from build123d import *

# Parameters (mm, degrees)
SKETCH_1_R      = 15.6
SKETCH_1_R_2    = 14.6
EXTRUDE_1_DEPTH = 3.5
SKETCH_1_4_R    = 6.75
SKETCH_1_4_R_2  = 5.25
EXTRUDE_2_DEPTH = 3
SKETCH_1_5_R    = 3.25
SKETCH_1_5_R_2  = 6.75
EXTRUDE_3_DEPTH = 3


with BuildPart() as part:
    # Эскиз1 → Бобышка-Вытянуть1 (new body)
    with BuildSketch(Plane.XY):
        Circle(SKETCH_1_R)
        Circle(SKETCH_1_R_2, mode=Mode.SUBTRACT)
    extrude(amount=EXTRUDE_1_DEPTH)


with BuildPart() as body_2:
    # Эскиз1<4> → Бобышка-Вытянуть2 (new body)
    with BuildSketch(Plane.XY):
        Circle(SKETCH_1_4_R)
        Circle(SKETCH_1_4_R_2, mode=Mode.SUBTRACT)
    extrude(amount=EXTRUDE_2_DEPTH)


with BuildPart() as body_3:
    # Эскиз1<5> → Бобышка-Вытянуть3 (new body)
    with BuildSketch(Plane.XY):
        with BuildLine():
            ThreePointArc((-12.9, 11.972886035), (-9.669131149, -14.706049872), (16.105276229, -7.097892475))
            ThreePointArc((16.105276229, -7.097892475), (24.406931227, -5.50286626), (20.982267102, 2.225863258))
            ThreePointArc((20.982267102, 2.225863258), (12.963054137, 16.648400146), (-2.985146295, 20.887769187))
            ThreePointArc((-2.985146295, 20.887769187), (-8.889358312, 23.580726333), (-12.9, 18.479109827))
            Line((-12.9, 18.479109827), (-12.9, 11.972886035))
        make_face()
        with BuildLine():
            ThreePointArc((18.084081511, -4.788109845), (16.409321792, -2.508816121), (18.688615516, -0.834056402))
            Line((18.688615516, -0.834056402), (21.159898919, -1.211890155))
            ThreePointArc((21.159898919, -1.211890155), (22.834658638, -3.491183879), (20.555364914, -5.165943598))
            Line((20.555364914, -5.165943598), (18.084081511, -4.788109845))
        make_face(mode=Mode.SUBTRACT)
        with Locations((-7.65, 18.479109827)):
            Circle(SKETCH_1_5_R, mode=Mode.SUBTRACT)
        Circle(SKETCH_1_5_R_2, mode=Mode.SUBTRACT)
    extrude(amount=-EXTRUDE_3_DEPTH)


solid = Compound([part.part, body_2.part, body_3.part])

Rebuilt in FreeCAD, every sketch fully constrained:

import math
import FreeCAD as App
import Part
import Sketcher

V = App.Vector
Q = App.Units.Quantity

doc = App.newDocument("Part")
params = doc.addObject("Spreadsheet::Sheet", "Params")
for row, (alias, value) in enumerate([
    ("sketch1_diameter", "31.2 mm"),
    ("sketch1_diameter2", "29.2 mm"),
    ("pad1_length", "3.5 mm"),
    ("sketch2_diameter", "13.5 mm"),
    ("sketch2_diameter2", "10.5 mm"),
    ("pad2_length", "3 mm"),
    ("sketch3_radius", "2 mm"),
    ("sketch3_diameter", "13.5 mm"),
    ("sketch3_diameter2", "6.5 mm"),
    ("sketch3_radius2", "17.6 mm"),
    ("sketch3_radius3", "5.4 mm"),
    ("pad3_length", "3 mm"),
], start=1):
    params.set(f"A{row}", alias)
    params.set(f"B{row}", "=" + value)
    params.setAlias(f"B{row}", alias)

body = doc.addObject("PartDesign::Body", "Body")

# Sketch on XY plane
sketch1 = body.newObject("Sketcher::SketchObject", "Sketch")
sketch1.AttachmentSupport = (doc.getObject("XY_Plane"), [""])
sketch1.MapMode = "FlatFace"
sketch1.addGeometry(Part.Circle(V(0, 0, 0), V(0, 0, 1), 16), False)
sketch1.addGeometry(Part.Circle(V(0, 0, 0), V(0, 0, 1), 15), False)
sketch1.addConstraint(Sketcher.Constraint("Coincident", 0, 3, -1, 1))
sketch1.addConstraint(Sketcher.Constraint("Coincident", 1, 3, -1, 1))
sketch1.addConstraint(Sketcher.Constraint("Diameter", 0, Q("31.2 mm")))
sketch1.addConstraint(Sketcher.Constraint("Diameter", 1, Q("29.2 mm")))
sketch1.setExpression("Constraints[2]", "Params.sketch1_diameter")
sketch1.setExpression("Constraints[3]", "Params.sketch1_diameter2")
pad1 = body.newObject("PartDesign::Pad", "Pad")
pad1.Profile = sketch1
pad1.setExpression("Length", "Params.pad1_length")
body2 = doc.addObject("PartDesign::Body", "Body001")

# Sketch on XY plane
sketch2 = body2.newObject("Sketcher::SketchObject", "Sketch001")
sketch2.AttachmentSupport = (doc.getObject("XY_Plane001"), [""])
sketch2.MapMode = "FlatFace"
sketch2.addGeometry(Part.Circle(V(0, 0, 0), V(0, 0, 1), 7), False)
sketch2.addGeometry(Part.Circle(V(0, 0, 0), V(0, 0, 1), 5), False)
sketch2.addConstraint(Sketcher.Constraint("Coincident", 0, 3, -1, 1))
sketch2.addConstraint(Sketcher.Constraint("Coincident", 1, 3, -1, 1))
sketch2.addConstraint(Sketcher.Constraint("Diameter", 0, Q("13.5 mm")))
sketch2.addConstraint(Sketcher.Constraint("Diameter", 1, Q("10.5 mm")))
sketch2.setExpression("Constraints[2]", "Params.sketch2_diameter")
sketch2.setExpression("Constraints[3]", "Params.sketch2_diameter2")
pad2 = body2.newObject("PartDesign::Pad", "Pad001")
pad2.Profile = sketch2
pad2.setExpression("Length", "Params.pad2_length")
body3 = doc.addObject("PartDesign::Body", "Body002")

# Sketch on XY plane
sketch3 = body3.newObject("Sketcher::SketchObject", "Sketch002")
sketch3.AttachmentSupport = (doc.getObject("XY_Plane002"), [""])
sketch3.MapMode = "FlatFace"
sketch3.addGeometry(Part.ArcOfCircle(Part.Circle(V(0, 0, 0), V(0, 0, 1), 17.6), math.radians(137), math.radians(336)), False)
sketch3.addGeometry(Part.ArcOfCircle(Part.Circle(V(19.6, -3, 0), V(0, 0, 1), 5.4), math.radians(-131), math.radians(75)), False)
sketch3.addGeometry(Part.ArcOfCircle(Part.Circle(V(0, 0, 0), V(0, 0, 1), 21.1), math.radians(6), math.radians(98)), False)
sketch3.addGeometry(Part.ArcOfCircle(Part.Circle(V(-7.7, 18.5, 0), V(0, 0, 1), 5.2), math.radians(27), math.radians(180)), False)
sketch3.addGeometry(Part.LineSegment(V(-12.9, 18.5, 0), V(-12.9, 12, 0)), False)
sketch3.addGeometry(Part.Circle(V(0, 0, 0), V(0, 0, 1), 6.8), False)
sketch3.addGeometry(Part.LineSegment(V(20.6, -5.2, 0), V(18.1, -4.8, 0)), False)
sketch3.addGeometry(Part.ArcOfCircle(Part.Circle(V(18.4, -2.8, 0), V(0, 0, 1), 2), math.radians(81), math.radians(261)), False)
sketch3.addGeometry(Part.LineSegment(V(18.7, -0.8, 0), V(21.2, -1.2, 0)), False)
sketch3.addGeometry(Part.ArcOfCircle(Part.Circle(V(20.9, -3.2, 0), V(0, 0, 1), 2), math.radians(-99), math.radians(81)), False)
sketch3.addGeometry(Part.Circle(V(-7.7, 18.5, 0), V(0, 0, 1), 3.2), False)
sketch3.addConstraint(Sketcher.Constraint("Coincident", 0, 2, 1, 1))
sketch3.addConstraint(Sketcher.Constraint("Coincident", 1, 2, 2, 1))
sketch3.addConstraint(Sketcher.Constraint("Coincident", 2, 2, 3, 1))
sketch3.addConstraint(Sketcher.Constraint("Tangent", 3, 2, 4, 1))
sketch3.addConstraint(Sketcher.Constraint("Coincident", 4, 2, 0, 1))
sketch3.addConstraint(Sketcher.Constraint("Tangent", 6, 2, 7, 2))
sketch3.addConstraint(Sketcher.Constraint("Tangent", 7, 1, 8, 1))
sketch3.addConstraint(Sketcher.Constraint("Tangent", 8, 2, 9, 2))
sketch3.addConstraint(Sketcher.Constraint("Tangent", 9, 1, 6, 1))
sketch3.addConstraint(Sketcher.Constraint("Vertical", 4))
sketch3.addConstraint(Sketcher.Constraint("Coincident", 0, 3, -1, 1))
sketch3.addConstraint(Sketcher.Constraint("Coincident", 2, 3, -1, 1))
sketch3.addConstraint(Sketcher.Constraint("Coincident", 5, 3, -1, 1))
sketch3.addConstraint(Sketcher.Constraint("Coincident", 10, 3, 3, 3))
sketch3.addConstraint(Sketcher.Constraint("Equal", 7, 9))
sketch3.addConstraint(Sketcher.Constraint("Radius", 7, Q("2 mm")))
sketch3.addConstraint(Sketcher.Constraint("Diameter", 5, Q("13.5 mm")))
sketch3.addConstraint(Sketcher.Constraint("Diameter", 10, Q("6.5 mm")))
sketch3.addConstraint(Sketcher.Constraint("Radius", 0, Q("17.6 mm")))
sketch3.addConstraint(Sketcher.Constraint("Radius", 1, Q("5.4 mm")))
sketch3.addConstraint(Sketcher.Constraint("Radius", 2, Q("21.1 mm")))
sketch3.addConstraint(Sketcher.Constraint("Radius", 3, Q("5.25 mm")))
sketch3.addConstraint(Sketcher.Constraint("DistanceY", 1, 3, -1, 1, Q("3 mm")))
sketch3.addConstraint(Sketcher.Constraint("Distance", 6, Q("2.5 mm")))
sketch3.addConstraint(Sketcher.Constraint("DistanceX", 3, 2, -1, 1, Q("12.9 mm")))
sketch3.addConstraint(Sketcher.Constraint("DistanceX", -1, 1, 8, 2, Q("21.159899 mm")))
sketch3.addConstraint(Sketcher.Constraint("DistanceY", 4, 2, 4, 1, Q("6.506224 mm")))
sketch3.addConstraint(Sketcher.Constraint("DistanceX", -1, 1, 1, 3, Q("19.62199 mm")))
sketch3.addConstraint(Sketcher.Constraint("DistanceX", -1, 1, 7, 3, Q("18.386349 mm")))
sketch3.addConstraint(Sketcher.Constraint("DistanceY", 6, 2, -1, 1, Q("4.78811 mm")))
sketch3.setExpression("Constraints[15]", "Params.sketch3_radius")
sketch3.setExpression("Constraints[16]", "Params.sketch3_diameter")
sketch3.setExpression("Constraints[17]", "Params.sketch3_diameter2")
sketch3.setExpression("Constraints[18]", "Params.sketch3_radius2")
sketch3.setExpression("Constraints[19]", "Params.sketch3_radius3")
pad3 = body3.newObject("PartDesign::Pad", "Pad002")
pad3.Profile = sketch3
pad3.setExpression("Length", "Params.pad3_length")
pad3.Reversed = True

doc.recompute()
